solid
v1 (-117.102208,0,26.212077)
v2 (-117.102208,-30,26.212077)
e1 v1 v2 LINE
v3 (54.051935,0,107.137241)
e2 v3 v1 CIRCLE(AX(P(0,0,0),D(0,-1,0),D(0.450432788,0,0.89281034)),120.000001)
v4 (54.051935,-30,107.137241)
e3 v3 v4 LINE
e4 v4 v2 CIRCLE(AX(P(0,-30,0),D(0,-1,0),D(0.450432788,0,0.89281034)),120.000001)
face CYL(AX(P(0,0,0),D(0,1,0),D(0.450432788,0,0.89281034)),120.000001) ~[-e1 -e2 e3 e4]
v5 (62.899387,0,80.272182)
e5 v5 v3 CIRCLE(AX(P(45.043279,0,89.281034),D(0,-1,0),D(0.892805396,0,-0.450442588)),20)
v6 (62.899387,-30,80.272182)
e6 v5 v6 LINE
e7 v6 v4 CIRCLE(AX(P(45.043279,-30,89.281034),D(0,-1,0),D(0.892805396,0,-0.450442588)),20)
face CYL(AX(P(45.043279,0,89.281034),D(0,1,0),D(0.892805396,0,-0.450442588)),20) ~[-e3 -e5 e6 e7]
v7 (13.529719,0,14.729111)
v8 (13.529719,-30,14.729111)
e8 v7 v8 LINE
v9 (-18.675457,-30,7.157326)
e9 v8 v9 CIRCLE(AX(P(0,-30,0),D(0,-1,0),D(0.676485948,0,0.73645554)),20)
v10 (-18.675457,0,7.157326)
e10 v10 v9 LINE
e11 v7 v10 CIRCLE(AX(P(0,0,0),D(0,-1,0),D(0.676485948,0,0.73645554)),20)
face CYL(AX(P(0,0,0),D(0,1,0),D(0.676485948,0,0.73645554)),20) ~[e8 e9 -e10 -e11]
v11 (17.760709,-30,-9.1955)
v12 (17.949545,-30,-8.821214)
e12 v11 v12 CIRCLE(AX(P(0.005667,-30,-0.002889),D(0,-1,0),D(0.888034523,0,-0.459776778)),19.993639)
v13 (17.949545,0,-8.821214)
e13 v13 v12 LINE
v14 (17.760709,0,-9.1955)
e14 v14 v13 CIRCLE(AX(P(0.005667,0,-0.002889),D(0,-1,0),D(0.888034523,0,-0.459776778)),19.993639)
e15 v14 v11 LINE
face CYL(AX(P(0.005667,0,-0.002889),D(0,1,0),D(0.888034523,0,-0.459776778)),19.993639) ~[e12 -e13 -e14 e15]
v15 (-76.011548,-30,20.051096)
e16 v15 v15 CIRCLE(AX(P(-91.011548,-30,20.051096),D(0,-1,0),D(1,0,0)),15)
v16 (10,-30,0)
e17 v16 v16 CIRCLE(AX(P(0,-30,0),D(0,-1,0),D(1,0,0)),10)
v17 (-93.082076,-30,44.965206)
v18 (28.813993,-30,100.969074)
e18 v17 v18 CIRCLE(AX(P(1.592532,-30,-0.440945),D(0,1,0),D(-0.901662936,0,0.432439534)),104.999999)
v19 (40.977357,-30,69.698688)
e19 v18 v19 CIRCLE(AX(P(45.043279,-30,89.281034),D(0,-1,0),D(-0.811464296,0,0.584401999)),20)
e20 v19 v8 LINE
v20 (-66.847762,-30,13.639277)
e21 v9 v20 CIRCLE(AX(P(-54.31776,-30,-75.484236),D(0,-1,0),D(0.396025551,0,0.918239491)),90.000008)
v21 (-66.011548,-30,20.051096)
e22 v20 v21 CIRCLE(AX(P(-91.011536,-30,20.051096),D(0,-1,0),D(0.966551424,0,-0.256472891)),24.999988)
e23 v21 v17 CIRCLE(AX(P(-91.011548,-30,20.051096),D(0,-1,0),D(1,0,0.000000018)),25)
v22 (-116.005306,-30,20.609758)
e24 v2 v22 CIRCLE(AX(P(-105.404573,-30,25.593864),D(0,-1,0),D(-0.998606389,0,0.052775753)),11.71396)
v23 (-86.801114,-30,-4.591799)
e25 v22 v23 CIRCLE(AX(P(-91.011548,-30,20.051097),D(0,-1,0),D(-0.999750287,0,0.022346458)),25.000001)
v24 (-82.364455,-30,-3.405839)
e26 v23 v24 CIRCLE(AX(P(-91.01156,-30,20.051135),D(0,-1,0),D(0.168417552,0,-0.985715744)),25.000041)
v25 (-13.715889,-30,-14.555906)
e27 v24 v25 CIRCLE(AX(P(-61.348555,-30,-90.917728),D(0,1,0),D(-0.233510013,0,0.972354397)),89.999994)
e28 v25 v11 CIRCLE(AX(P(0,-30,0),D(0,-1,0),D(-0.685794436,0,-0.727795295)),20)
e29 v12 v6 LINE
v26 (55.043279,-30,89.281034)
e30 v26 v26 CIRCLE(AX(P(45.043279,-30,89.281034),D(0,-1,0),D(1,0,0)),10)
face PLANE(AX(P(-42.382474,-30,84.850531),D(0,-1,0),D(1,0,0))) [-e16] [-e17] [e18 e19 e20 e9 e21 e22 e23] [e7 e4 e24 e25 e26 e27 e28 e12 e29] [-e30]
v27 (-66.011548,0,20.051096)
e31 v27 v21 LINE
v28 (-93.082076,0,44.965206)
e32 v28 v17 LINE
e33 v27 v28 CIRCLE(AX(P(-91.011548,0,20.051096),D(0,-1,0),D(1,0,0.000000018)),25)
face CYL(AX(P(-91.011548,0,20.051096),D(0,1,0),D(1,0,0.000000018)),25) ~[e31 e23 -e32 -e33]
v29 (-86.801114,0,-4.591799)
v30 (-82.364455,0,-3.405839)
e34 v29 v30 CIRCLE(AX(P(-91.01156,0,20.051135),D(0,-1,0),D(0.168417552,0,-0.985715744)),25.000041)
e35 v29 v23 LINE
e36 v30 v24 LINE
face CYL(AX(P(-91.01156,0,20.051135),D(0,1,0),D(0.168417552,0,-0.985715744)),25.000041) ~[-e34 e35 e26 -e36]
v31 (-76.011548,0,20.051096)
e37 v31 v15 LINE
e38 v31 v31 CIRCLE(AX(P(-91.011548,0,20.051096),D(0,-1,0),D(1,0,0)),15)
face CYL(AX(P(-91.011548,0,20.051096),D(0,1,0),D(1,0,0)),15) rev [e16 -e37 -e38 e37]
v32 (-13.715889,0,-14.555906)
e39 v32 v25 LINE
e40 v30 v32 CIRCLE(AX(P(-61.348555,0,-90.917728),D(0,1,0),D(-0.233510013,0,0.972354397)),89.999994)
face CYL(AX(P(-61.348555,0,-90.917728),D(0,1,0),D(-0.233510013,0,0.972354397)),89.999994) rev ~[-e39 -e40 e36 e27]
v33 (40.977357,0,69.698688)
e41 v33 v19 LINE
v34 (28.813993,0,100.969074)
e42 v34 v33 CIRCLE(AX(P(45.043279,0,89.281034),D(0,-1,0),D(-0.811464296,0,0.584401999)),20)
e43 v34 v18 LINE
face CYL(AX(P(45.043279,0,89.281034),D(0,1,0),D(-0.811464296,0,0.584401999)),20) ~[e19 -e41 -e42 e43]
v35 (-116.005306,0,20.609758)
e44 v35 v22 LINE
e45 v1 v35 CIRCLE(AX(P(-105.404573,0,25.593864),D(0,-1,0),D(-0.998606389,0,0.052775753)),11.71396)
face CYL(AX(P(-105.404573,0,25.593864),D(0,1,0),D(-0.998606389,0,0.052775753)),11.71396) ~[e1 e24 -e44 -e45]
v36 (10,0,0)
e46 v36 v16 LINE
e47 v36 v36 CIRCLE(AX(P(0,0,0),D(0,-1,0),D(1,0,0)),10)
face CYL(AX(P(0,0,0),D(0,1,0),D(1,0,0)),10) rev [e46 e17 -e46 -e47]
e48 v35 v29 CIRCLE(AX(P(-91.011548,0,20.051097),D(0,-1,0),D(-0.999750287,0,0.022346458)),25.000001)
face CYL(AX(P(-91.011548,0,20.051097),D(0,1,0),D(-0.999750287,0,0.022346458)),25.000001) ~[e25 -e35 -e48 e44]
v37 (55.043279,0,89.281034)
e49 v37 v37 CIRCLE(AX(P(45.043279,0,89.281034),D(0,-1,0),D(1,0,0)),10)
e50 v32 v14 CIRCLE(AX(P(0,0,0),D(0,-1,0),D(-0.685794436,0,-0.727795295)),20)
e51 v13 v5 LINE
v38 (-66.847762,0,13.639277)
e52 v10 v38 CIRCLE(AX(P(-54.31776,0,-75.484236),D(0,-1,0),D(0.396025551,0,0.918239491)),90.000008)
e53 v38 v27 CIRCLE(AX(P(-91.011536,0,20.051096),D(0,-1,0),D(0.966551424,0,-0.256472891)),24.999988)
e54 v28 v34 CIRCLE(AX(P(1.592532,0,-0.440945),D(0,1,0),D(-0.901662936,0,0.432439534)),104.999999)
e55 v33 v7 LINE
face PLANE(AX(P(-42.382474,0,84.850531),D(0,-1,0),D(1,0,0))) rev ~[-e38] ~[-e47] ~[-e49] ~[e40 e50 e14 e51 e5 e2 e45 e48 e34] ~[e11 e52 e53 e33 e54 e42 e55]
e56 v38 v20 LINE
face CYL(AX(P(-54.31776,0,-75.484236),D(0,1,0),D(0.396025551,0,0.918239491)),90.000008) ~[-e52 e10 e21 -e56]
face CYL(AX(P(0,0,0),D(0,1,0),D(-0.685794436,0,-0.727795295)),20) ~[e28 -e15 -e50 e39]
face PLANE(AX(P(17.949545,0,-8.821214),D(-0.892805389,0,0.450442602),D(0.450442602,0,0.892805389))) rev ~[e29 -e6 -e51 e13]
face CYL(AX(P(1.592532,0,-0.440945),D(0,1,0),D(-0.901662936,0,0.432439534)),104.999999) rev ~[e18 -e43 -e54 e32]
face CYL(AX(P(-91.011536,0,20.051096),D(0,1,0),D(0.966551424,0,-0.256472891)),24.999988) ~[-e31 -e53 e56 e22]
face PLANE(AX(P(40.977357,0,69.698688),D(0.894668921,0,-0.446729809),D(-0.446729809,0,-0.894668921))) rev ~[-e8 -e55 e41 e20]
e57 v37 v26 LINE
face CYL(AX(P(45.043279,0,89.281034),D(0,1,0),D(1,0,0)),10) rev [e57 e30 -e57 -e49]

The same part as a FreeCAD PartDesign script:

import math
import FreeCAD as App
import Part
import Sketcher
Q = App.Units.Quantity

doc = App.newDocument("Part")
body = doc.addObject("PartDesign::Body", "Body")

# Sketch on XZ plane
sketch1 = body.newObject("Sketcher::SketchObject", "Sketch")
sketch1.AttachmentSupport = (doc.getObject("XZ_Plane"), [""])
sketch1.MapMode = "FlatFace"
sketch1.addGeometry([
    Part.ArcOfCircle(Part.Circle(App.Vector(0, 0, 0), App.Vector(0, 0, 1), 120.000001), math.radians(63.228545), math.radians(167.38293)),  # 0
    Part.ArcOfCircle(Part.Circle(App.Vector(-105.404573, 25.593864, 0), App.Vector(0, 0, 1), 11.71396), math.radians(176.974767), math.radians(205.181322)),  # 1
    Part.ArcOfCircle(Part.Circle(App.Vector(-91.011548, 20.051097, 0), App.Vector(0, 0, 1), 25.000001), math.radians(178.719536), math.radians(279.695813)),  # 2
    Part.ArcOfCircle(Part.Circle(App.Vector(-91.01156, 20.051135, 0), App.Vector(0, 0, 1), 25.000041), math.radians(-80.304175), math.radians(-69.764255)),  # 3
    Part.ArcOfCircle(Part.Circle(App.Vector(-61.348555, -90.917728, 0), App.Vector(0, 0, 1), 89.999994), math.radians(58.045078), math.radians(103.503809)),  # 4
    Part.ArcOfCircle(Part.Circle(App.Vector(0, 0, 0), App.Vector(0, 0, 1), 20), math.radians(-133.298117), math.radians(-27.37259)),  # 5
    Part.ArcOfCircle(Part.Circle(App.Vector(0.005667, -0.002889, 0), App.Vector(0, 0, 1), 19.993639), math.radians(-27.372704), math.radians(-26.171311)),  # 6
    Part.LineSegment(App.Vector(17.949545, -8.821214, 0), App.Vector(62.899387, 80.272182, 0)),  # 7
    Part.ArcOfCircle(Part.Circle(App.Vector(45.043279, 89.281034, 0), App.Vector(0, 0, 1), 20), math.radians(-26.772083), math.radians(63.228544)),  # 8
    Part.ArcOfCircle(Part.Circle(App.Vector(-91.011536, 20.051096, 0), App.Vector(0, 0, 1), 24.999988), math.radians(-14.860878), math.radians(-0.000001)),  # 9
    Part.ArcOfCircle(Part.Circle(App.Vector(-91.011548, 20.051096, 0), App.Vector(0, 0, 1), 25), math.radians(0.000001), math.radians(94.750743)),  # 10
    Part.ArcOfCircle(Part.Circle(App.Vector(1.592532, -0.440945, 0), App.Vector(0, 0, 1), 104.999999), math.radians(74.974316), math.radians(154.377521)),  # 11
    Part.ArcOfCircle(Part.Circle(App.Vector(45.043279, 89.281034, 0), App.Vector(0, 0, 1), 20), math.radians(144.239245), math.radians(258.270228)),  # 12
    Part.LineSegment(App.Vector(40.977357, 69.698688, 0), App.Vector(13.529719, 14.729111, 0)),  # 13
    Part.ArcOfCircle(Part.Circle(App.Vector(0, 0, 0), App.Vector(0, 0, 1), 20), math.radians(47.430351), math.radians(159.030785)),  # 14
    Part.ArcOfCircle(Part.Circle(App.Vector(-54.31776, -75.484236, 0), App.Vector(0, 0, 1), 90.000008), math.radians(66.67005), math.radians(98.002843)),  # 15
    Part.Circle(App.Vector(-91.011548, 20.051096, 0), App.Vector(0, 0, 1), 15),  # 16
    Part.Circle(App.Vector(0, 0, 0), App.Vector(0, 0, 1), 10),  # 17
    Part.Circle(App.Vector(45.043279, 89.281034, 0), App.Vector(0, 0, 1), 10),  # 18
], False)
sketch1.addConstraint([
    Sketcher.Constraint("Coincident", 0, 2, 1, 1),
    Sketcher.Constraint("Coincident", 1, 2, 2, 1),
    Sketcher.Constraint("Coincident", 2, 2, 3, 1),
    Sketcher.Constraint("Coincident", 3, 2, 4, 2),
    Sketcher.Constraint("Coincident", 4, 1, 5, 1),
    Sketcher.Constraint("Coincident", 5, 2, 6, 1),
    Sketcher.Constraint("Coincident", 6, 2, 7, 1),
    Sketcher.Constraint("Coincident", 7, 2, 8, 1),
    Sketcher.Constraint("Coincident", 8, 2, 0, 1),
    Sketcher.Constraint("Coincident", 9, 2, 10, 1),
    Sketcher.Constraint("Coincident", 10, 2, 11, 2),
    Sketcher.Constraint("Coincident", 11, 1, 12, 1),
    Sketcher.Constraint("Coincident", 12, 2, 13, 1),
    Sketcher.Constraint("Coincident", 13, 2, 14, 1),
    Sketcher.Constraint("Coincident", 14, 2, 15, 1),
    Sketcher.Constraint("Coincident", 15, 2, 9, 1),
    Sketcher.Constraint("Coincident", 0, 3, -1, 1),
    Sketcher.Constraint("Coincident", 5, 3, -1, 1),
    Sketcher.Constraint("Coincident", 14, 3, -1, 1),
    Sketcher.Constraint("Coincident", 17, 3, -1, 1),
    Sketcher.Constraint("Coincident", 10, 3, 2, 3),
    Sketcher.Constraint("Coincident", 12, 3, 8, 3),
    Sketcher.Constraint("Coincident", 16, 3, 2, 3),
    Sketcher.Constraint("Coincident", 18, 3, 8, 3),
    Sketcher.Constraint("Diameter", 16, Q("30 mm")),
    Sketcher.Constraint("Diameter", 17, Q("20 mm")),
    Sketcher.Constraint("Diameter", 18, Q("20 mm")),
    Sketcher.Constraint("Radius", 0, Q("120.000001 mm")),
    Sketcher.Constraint("Radius", 2, Q("25.000001 mm")),
    Sketcher.Constraint("Radius", 5, Q("20 mm")),
    Sketcher.Constraint("Radius", 8, Q("20 mm")),
    Sketcher.Constraint("Radius", 10, Q("25 mm")),
    Sketcher.Constraint("Radius", 11, Q("104.999999 mm")),
    Sketcher.Constraint("Radius", 12, Q("20 mm")),
    Sketcher.Constraint("Radius", 14, Q("20 mm")),
    Sketcher.Constraint("Radius", 1, Q("11.71396 mm")),
    Sketcher.Constraint("Radius", 3, Q("25.000041 mm")),
    Sketcher.Constraint("Radius", 6, Q("19.993639 mm")),
    Sketcher.Constraint("Radius", 9, Q("24.999988 mm")),
    Sketcher.Constraint("Radius", 15, Q("90.000008 mm")),
    Sketcher.Constraint("Radius", 4, Q("89.999994 mm")),
    Sketcher.Constraint("DistanceY", 6, 3, 13, 2, Q("14.732 mm")),
    Sketcher.Constraint("DistanceY", 2, 2, -1, 1, Q("4.591799 mm")),
    Sketcher.Constraint("DistanceY", 5, 2, -1, 1, Q("9.1955 mm")),
    Sketcher.Constraint("DistanceY", 3, 3, 8, 3, Q("69.229899 mm")),
    Sketcher.Constraint("Distance", 13, Q("61.44125 mm")),
    Sketcher.Constraint("DistanceX", 3, 3, -1, 1, Q("91.01156 mm")),
    Sketcher.Constraint("DistanceY", 4, 3, -1, 1, Q("90.917728 mm")),
    Sketcher.Constraint("DistanceY", 6, 3, -1, 1, Q("0.002889 mm")),
    Sketcher.Constraint("DistanceX", -1, 1, 8, 3, Q("45.043279 mm")),
    Sketcher.Constraint("DistanceX", -1, 1, 11, 3, Q("1.592532 mm")),
    Sketcher.Constraint("DistanceX", 15, 3, -1, 1, Q("54.31776 mm")),
    Sketcher.Constraint("DistanceX", 16, 3, -1, 1, Q("91.011548 mm")),
    Sketcher.Constraint("DistanceY", -1, 1, 1, 2, Q("20.609758 mm")),
    Sketcher.Constraint("DistanceY", 3, 2, -1, 1, Q("3.405839 mm")),
    Sketcher.Constraint("DistanceY", -1, 1, 7, 2, Q("80.272182 mm")),
    Sketcher.Constraint("DistanceY", -1, 1, 8, 2, Q("107.137241 mm")),
    Sketcher.Constraint("DistanceX", 15, 2, -1, 1, Q("66.847762 mm")),
    Sketcher.Constraint("DistanceY", 3, 3, 1, 3, Q("5.542729 mm")),
    Sketcher.Constraint("DistanceY", 11, 3, 9, 3, Q("20.492041 mm")),
    Sketcher.Constraint("DistanceY", 11, 3, 10, 3, Q("20.49204 mm")),
    Sketcher.Constraint("DistanceY", 6, 2, 11, 3, Q("8.380269 mm")),
    Sketcher.Constraint("DistanceY", 15, 2, 9, 2, Q("6.411819 mm")),
])
pad1 = body.newObject("PartDesign::Pad", "Pad")
pad1.Profile = sketch1
pad1.Length = 30

doc.recompute()
